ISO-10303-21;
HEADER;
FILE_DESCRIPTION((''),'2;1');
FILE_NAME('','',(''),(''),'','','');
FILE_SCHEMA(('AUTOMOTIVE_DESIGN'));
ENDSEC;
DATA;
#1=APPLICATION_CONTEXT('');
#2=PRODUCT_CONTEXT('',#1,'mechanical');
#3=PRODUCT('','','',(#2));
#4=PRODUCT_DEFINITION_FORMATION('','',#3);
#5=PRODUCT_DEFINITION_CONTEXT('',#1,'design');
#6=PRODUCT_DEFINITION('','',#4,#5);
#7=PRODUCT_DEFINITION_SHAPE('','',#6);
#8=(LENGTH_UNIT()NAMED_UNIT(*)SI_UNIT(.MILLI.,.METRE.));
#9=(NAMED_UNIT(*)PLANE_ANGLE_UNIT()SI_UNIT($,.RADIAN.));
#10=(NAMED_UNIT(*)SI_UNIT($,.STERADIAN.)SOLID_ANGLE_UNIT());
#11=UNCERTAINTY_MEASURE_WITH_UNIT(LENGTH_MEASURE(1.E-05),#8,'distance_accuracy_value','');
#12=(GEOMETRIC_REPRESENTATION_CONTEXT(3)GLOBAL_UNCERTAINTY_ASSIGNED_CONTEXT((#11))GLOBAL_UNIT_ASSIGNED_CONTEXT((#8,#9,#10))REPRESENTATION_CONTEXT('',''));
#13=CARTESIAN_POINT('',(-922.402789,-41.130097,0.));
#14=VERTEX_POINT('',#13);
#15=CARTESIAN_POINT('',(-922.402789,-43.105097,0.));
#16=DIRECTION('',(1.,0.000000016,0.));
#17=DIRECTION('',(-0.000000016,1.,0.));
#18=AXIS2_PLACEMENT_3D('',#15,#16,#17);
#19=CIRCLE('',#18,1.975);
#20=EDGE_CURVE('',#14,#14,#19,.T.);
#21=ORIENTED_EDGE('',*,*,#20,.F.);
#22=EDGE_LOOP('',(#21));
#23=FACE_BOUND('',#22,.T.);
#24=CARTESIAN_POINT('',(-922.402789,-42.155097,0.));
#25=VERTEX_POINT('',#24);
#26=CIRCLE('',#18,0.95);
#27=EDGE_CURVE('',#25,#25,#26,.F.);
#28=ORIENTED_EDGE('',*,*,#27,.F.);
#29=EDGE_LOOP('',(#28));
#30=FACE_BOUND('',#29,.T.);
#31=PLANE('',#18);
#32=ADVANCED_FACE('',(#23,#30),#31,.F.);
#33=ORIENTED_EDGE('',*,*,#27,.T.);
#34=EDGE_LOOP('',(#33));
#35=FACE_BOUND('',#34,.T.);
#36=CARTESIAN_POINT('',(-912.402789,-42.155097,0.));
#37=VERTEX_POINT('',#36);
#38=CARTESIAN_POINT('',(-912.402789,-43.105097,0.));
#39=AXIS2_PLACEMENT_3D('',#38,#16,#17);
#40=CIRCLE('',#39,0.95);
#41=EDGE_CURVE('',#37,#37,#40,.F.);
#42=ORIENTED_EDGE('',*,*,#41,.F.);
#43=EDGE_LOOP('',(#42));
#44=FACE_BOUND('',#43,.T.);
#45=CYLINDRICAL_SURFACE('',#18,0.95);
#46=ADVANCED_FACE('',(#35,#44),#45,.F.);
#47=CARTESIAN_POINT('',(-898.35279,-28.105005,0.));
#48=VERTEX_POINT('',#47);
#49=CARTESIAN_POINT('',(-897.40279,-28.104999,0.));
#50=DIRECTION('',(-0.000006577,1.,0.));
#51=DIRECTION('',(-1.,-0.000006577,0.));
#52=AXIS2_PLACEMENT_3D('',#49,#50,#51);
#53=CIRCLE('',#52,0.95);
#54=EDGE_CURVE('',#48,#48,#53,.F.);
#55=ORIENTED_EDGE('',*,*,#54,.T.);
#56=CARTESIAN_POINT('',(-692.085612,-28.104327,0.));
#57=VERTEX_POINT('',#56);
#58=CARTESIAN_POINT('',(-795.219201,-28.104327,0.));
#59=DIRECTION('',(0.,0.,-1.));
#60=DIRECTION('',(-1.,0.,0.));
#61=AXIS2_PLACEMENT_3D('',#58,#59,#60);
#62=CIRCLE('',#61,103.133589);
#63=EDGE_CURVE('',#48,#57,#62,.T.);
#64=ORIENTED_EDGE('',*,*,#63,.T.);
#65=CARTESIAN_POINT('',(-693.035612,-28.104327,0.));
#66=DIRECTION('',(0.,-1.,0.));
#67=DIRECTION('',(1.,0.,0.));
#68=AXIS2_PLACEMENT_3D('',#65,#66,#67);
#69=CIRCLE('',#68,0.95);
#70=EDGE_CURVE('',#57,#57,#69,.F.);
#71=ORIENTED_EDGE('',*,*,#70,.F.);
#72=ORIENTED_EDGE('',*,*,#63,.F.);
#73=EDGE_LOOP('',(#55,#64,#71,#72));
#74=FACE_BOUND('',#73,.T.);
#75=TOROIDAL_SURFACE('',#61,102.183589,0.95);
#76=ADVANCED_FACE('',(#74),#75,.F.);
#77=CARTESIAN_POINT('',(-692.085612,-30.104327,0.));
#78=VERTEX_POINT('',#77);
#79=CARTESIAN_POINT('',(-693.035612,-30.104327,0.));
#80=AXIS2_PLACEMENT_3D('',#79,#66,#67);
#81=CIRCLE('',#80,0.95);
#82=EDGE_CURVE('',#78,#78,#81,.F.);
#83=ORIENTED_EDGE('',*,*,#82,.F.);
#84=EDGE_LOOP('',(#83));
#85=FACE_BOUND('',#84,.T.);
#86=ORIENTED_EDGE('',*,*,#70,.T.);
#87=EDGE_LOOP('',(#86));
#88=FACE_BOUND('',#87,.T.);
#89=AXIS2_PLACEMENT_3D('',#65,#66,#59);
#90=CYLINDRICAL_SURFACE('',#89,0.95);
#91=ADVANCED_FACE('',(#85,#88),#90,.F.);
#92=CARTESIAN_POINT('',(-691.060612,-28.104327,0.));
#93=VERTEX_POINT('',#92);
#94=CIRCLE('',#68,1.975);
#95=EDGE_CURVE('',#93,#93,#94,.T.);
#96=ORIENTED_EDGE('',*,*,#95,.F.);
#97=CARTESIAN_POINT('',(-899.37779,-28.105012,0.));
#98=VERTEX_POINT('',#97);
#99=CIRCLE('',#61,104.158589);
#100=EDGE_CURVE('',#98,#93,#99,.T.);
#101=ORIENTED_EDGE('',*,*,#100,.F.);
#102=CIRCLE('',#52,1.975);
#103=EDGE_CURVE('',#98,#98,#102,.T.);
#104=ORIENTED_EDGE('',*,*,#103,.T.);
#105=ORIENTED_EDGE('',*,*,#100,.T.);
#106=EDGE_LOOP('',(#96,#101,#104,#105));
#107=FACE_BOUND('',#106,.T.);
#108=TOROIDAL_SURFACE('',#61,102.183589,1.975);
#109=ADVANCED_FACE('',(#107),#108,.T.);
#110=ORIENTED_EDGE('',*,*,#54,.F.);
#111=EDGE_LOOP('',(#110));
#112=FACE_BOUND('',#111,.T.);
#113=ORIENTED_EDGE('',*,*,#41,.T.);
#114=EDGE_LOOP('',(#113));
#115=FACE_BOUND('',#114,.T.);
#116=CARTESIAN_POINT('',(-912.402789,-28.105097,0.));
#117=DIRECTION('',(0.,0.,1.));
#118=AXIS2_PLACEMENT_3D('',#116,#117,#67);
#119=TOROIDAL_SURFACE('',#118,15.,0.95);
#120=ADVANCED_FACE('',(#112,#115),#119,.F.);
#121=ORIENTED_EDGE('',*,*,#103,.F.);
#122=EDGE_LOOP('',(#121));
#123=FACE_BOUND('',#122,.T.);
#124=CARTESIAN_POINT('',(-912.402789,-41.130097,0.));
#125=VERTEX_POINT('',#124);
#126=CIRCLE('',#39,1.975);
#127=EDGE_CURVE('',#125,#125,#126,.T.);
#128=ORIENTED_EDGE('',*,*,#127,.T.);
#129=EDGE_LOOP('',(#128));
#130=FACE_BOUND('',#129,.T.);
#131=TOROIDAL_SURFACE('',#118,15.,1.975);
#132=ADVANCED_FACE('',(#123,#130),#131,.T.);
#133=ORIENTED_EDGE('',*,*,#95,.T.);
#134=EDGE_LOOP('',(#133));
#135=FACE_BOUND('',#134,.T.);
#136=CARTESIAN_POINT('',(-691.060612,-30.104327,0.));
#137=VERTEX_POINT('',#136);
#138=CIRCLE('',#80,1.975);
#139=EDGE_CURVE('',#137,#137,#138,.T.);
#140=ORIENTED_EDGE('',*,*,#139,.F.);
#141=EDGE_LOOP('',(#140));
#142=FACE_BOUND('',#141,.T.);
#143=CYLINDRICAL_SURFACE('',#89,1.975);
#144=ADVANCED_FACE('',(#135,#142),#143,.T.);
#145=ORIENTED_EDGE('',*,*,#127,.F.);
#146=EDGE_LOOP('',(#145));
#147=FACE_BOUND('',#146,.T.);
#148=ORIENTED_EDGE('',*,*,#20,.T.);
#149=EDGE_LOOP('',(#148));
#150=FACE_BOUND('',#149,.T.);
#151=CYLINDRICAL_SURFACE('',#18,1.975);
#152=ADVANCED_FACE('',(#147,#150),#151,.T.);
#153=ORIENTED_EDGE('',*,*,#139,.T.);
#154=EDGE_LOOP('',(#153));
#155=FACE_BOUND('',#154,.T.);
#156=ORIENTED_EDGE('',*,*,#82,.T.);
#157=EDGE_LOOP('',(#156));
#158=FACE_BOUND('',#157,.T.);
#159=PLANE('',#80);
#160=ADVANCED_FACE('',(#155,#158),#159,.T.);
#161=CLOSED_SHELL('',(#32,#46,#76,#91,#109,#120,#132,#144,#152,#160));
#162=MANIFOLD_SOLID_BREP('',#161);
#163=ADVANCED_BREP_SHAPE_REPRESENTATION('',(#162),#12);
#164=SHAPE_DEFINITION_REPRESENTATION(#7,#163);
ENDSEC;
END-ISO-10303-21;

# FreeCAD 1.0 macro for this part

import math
import FreeCAD as App
import Part
import Sketcher

doc = App.newDocument("Part")
params = doc.addObject("Spreadsheet::Sheet", "Params")
for row, (alias, value) in enumerate([
    ("sketch1_diameter", "1.9 mm"),
    ("sketch1_diameter2", "3.95 mm"),
    ("sketch2_radius", "15 mm"),
    ("sketch2_width", "10 mm"),
    ("sketch2_height", "2 mm"),
], start=1):
    params.set(f"A{row}", alias)
    params.set(f"B{row}", "=" + value)
    params.setAlias(f"B{row}", alias)

body = doc.addObject("PartDesign::Body", "Body")

# Sketch on YZ plane
sketch1 = body.newObject("Sketcher::SketchObject", "Sketch")
sketch1.AttachmentSupport = (doc.getObject("YZ_Plane"), [""])
sketch1.MapMode = "FlatFace"
sketch1.AttachmentOffset = App.Placement(App.Vector(0, 0, -922.402789), App.Rotation())
sketch1.addGeometry([
    Part.Circle(App.Vector(-43.1, 0, 0), App.Vector(0, 0, 1), 2),
    Part.Circle(App.Vector(-43.1, 0, 0), App.Vector(0, 0, 1), 0.9),
], False)
sketch1.addConstraint([
    Sketcher.Constraint("Coincident", 1, 3, 0, 3),
    Sketcher.Constraint("PointOnObject", 0, 3, -1),
    Sketcher.Constraint("Diameter", 1, 1.9),
    Sketcher.Constraint("Diameter", 0, 3.95),
    Sketcher.Constraint("DistanceX", 0, 3, -1, 1, 43.105097),
])
sketch1.setExpression("Constraints[2]", "Params.sketch1_diameter")
sketch1.setExpression("Constraints[3]", "Params.sketch1_diameter2")

# Sketch on XY plane
sketch2 = body.newObject("Sketcher::SketchObject", "Sketch001")
sketch2.AttachmentSupport = (doc.getObject("XY_Plane"), [""])
sketch2.MapMode = "FlatFace"
sketch2.addGeometry([
    Part.LineSegment(App.Vector(-922.4, -43.1, 0), App.Vector(-912.4, -43.1, 0)),
    Part.ArcOfCircle(Part.Circle(App.Vector(-912.4, -28.1, 0), App.Vector(0, 0, 1), 15), math.radians(-90), math.radians(0)),
    Part.ArcOfCircle(Part.Circle(App.Vector(-795.2, -28.1, 0), App.Vector(0, 0, 1), 102.2), math.radians(0), math.radians(180)),
    Part.LineSegment(App.Vector(-693, -28.1, 0), App.Vector(-693, -30.1, 0)),
], False)
sketch2.addConstraint([
    Sketcher.Constraint("Tangent", 0, 2, 1, 1),
    Sketcher.Constraint("Tangent", 1, 2, 2, 2),
    Sketcher.Constraint("Tangent", 2, 1, 3, 1),
    Sketcher.Constraint("Horizontal", 0),
    Sketcher.Constraint("Vertical", 3),
    Sketcher.Constraint("Radius", 1, 15.0),
    Sketcher.Constraint("DistanceX", 0, 1, 0, 2, 10.0),
    Sketcher.Constraint("DistanceY", 3, 2, 3, 1, 2.0),
    Sketcher.Constraint("Radius", 2, 102.183588),
    Sketcher.Constraint("DistanceY", 1, 2, -1, 1, 28.104999),
    Sketcher.Constraint("DistanceX", 2, 3, -1, 1, 795.219201),
    Sketcher.Constraint("DistanceY", 0, 2, 1, 2, 15.000099),
])
sketch2.setExpression("Constraints[5]", "Params.sketch2_radius")
sketch2.setExpression("Constraints[6]", "Params.sketch2_width")
sketch2.setExpression("Constraints[7]", "Params.sketch2_height")
doc.recompute()

additivepipe = body.newObject("PartDesign::AdditivePipe", "AdditivePipe")
additivepipe.Profile = sketch1
additivepipe.Spine = (sketch2, ["Edge1", "Edge2", "Edge3", "Edge4"])

doc.recompute()
